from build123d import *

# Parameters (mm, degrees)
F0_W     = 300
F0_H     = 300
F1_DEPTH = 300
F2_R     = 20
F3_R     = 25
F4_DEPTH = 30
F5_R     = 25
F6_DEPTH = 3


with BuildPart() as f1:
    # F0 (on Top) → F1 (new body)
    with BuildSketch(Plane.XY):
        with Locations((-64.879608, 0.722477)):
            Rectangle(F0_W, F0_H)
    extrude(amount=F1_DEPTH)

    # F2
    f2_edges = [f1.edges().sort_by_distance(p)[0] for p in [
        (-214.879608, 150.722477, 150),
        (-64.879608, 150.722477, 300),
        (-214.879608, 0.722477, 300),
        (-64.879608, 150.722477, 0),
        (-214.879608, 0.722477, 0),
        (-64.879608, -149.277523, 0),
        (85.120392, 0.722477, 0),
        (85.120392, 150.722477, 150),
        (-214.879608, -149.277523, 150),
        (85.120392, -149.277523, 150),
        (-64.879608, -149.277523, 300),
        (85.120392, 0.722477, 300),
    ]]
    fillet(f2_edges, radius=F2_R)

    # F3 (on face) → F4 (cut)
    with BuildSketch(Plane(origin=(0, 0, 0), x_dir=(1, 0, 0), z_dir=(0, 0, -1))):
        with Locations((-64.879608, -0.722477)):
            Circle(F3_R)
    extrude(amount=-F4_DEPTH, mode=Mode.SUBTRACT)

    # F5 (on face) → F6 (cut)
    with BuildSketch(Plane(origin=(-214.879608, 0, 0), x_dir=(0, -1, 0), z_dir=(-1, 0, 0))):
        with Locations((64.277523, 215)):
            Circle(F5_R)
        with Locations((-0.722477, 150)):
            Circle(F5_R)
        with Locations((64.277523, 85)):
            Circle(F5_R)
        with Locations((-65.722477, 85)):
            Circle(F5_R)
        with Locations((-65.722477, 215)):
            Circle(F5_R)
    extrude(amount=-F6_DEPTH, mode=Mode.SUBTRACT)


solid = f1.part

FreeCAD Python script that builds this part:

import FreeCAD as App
import Part
import Sketcher
Q = App.Units.Quantity


def add_polygon(sketch, points):
    """Adds a closed chain of lines whose ends are joined by coincident constraints."""
    first, n = sketch.GeometryCount, len(points)
    for a, b in zip(points, points[1:] + points[:1]):
        sketch.addGeometry(Part.LineSegment(App.Vector(*a, 0), App.Vector(*b, 0)), False)
    for i in range(n):
        sketch.addConstraint(Sketcher.Constraint("Coincident", first + i, 2, first + (i + 1) % n, 1))

doc = App.newDocument("Part")
body = doc.addObject("PartDesign::Body", "Body")

sketch1 = body.newObject("Sketcher::SketchObject", "Sketch")
sketch1.AttachmentSupport = (doc.getObject("XY_Plane"), [""])
sketch1.MapMode = "FlatFace"
add_polygon(sketch1, [(-215, 151), (-215, -149), (85, -149), (85, 151)])
sketch1.addConstraint(Sketcher.Constraint("Vertical", 0))
sketch1.addConstraint(Sketcher.Constraint("Horizontal", 1))
sketch1.addConstraint(Sketcher.Constraint("Vertical", 2))
sketch1.addConstraint(Sketcher.Constraint("Horizontal", 3))
sketch1.addConstraint(Sketcher.Constraint("Equal", 3, 0))
sketch1.addConstraint(Sketcher.Constraint("DistanceX", 1, 1, 1, 2, Q("300 mm")))
sketch1.addConstraint(Sketcher.Constraint("DistanceX", -1, 1, 1, 2, Q("85.120392 mm")))
sketch1.addConstraint(Sketcher.Constraint("DistanceY", 0, 2, -1, 1, Q("149.277523 mm")))
pad1 = body.newObject("PartDesign::Pad", "Pad")
pad1.Profile = sketch1
pad1.Length = 300
doc.recompute()

fillet = body.newObject("PartDesign::Fillet", "Fillet")
fillet.Base = (pad1, ["Edge1"])
fillet.UseAllEdges = True
fillet.Radius = 20

sketch2 = body.newObject("Sketcher::SketchObject", "Sketch001")
sketch2.AttachmentSupport = (doc.getObject("XY_Plane"), [""])
sketch2.MapMode = "FlatFace"
sketch2.addGeometry(Part.Circle(App.Vector(-65, 1, 0), App.Vector(0, 0, 1), 25), False)
sketch2.addConstraint(Sketcher.Constraint("Diameter", 0, Q("50 mm")))
sketch2.addConstraint(Sketcher.Constraint("DistanceX", 0, 3, -1, 1, Q("64.879608 mm")))
sketch2.addConstraint(Sketcher.Constraint("DistanceY", -1, 1, 0, 3, Q("0.722477 mm")))
pocket1 = body.newObject("PartDesign::Pocket", "Pocket")
pocket1.Profile = sketch2
pocket1.Length = 30
pocket1.Reversed = True

sketch3 = body.newObject("Sketcher::SketchObject", "Sketch002")
sketch3.AttachmentSupport = (doc.getObject("YZ_Plane"), [""])
sketch3.MapMode = "FlatFace"
sketch3.AttachmentOffset = App.Placement(App.Vector(0, 0, -214.879608), App.Rotation())
sketch3.addGeometry(Part.Circle(App.Vector(-64, 215, 0), App.Vector(0, 0, 1), 25), False)
sketch3.addGeometry(Part.Circle(App.Vector(1, 150, 0), App.Vector(0, 0, 1), 25), False)
sketch3.addGeometry(Part.Circle(App.Vector(-64, 85, 0), App.Vector(0, 0, 1), 25), False)
sketch3.addGeometry(Part.Circle(App.Vector(66, 85, 0), App.Vector(0, 0, 1), 25), False)
sketch3.addGeometry(Part.Circle(App.Vector(66, 215, 0), App.Vector(0, 0, 1), 25), False)
sketch3.addConstraint(Sketcher.Constraint("Equal", 0, 1))
sketch3.addConstraint(Sketcher.Constraint("Equal", 1, 2))
sketch3.addConstraint(Sketcher.Constraint("Equal", 2, 3))
sketch3.addConstraint(Sketcher.Constraint("Equal", 3, 4))
sketch3.addConstraint(Sketcher.Constraint("Horizontal", 2, 3, 3, 3))
sketch3.addConstraint(Sketcher.Constraint("Horizontal", 0, 3, 4, 3))
sketch3.addConstraint(Sketcher.Constraint("Vertical", 0, 3, 2, 3))
sketch3.addConstraint(Sketcher.Constraint("Vertical", 3, 3, 4, 3))
sketch3.addConstraint(Sketcher.Constraint("Diameter", 0, Q("50 mm")))
sketch3.addConstraint(Sketcher.Constraint("DistanceY", -1, 1, 0, 3, Q("215 mm")))
sketch3.addConstraint(Sketcher.Constraint("DistanceY", -1, 1, 1, 3, Q("150 mm")))
sketch3.addConstraint(Sketcher.Constraint("DistanceY", -1, 1, 2, 3, Q("85 mm")))
sketch3.addConstraint(Sketcher.Constraint("DistanceX", 0, 3, 1, 3, Q("65 mm")))
sketch3.addConstraint(Sketcher.Constraint("DistanceX", 1, 3, 3, 3, Q("65 mm")))
sketch3.addConstraint(Sketcher.Constraint("DistanceX", 0, 3, -1, 1, Q("64.277523 mm")))
pocket2 = body.newObject("PartDesign::Pocket", "Pocket001")
pocket2.Profile = sketch3
pocket2.Length = 3
pocket2.Reversed = True

doc.recompute()
